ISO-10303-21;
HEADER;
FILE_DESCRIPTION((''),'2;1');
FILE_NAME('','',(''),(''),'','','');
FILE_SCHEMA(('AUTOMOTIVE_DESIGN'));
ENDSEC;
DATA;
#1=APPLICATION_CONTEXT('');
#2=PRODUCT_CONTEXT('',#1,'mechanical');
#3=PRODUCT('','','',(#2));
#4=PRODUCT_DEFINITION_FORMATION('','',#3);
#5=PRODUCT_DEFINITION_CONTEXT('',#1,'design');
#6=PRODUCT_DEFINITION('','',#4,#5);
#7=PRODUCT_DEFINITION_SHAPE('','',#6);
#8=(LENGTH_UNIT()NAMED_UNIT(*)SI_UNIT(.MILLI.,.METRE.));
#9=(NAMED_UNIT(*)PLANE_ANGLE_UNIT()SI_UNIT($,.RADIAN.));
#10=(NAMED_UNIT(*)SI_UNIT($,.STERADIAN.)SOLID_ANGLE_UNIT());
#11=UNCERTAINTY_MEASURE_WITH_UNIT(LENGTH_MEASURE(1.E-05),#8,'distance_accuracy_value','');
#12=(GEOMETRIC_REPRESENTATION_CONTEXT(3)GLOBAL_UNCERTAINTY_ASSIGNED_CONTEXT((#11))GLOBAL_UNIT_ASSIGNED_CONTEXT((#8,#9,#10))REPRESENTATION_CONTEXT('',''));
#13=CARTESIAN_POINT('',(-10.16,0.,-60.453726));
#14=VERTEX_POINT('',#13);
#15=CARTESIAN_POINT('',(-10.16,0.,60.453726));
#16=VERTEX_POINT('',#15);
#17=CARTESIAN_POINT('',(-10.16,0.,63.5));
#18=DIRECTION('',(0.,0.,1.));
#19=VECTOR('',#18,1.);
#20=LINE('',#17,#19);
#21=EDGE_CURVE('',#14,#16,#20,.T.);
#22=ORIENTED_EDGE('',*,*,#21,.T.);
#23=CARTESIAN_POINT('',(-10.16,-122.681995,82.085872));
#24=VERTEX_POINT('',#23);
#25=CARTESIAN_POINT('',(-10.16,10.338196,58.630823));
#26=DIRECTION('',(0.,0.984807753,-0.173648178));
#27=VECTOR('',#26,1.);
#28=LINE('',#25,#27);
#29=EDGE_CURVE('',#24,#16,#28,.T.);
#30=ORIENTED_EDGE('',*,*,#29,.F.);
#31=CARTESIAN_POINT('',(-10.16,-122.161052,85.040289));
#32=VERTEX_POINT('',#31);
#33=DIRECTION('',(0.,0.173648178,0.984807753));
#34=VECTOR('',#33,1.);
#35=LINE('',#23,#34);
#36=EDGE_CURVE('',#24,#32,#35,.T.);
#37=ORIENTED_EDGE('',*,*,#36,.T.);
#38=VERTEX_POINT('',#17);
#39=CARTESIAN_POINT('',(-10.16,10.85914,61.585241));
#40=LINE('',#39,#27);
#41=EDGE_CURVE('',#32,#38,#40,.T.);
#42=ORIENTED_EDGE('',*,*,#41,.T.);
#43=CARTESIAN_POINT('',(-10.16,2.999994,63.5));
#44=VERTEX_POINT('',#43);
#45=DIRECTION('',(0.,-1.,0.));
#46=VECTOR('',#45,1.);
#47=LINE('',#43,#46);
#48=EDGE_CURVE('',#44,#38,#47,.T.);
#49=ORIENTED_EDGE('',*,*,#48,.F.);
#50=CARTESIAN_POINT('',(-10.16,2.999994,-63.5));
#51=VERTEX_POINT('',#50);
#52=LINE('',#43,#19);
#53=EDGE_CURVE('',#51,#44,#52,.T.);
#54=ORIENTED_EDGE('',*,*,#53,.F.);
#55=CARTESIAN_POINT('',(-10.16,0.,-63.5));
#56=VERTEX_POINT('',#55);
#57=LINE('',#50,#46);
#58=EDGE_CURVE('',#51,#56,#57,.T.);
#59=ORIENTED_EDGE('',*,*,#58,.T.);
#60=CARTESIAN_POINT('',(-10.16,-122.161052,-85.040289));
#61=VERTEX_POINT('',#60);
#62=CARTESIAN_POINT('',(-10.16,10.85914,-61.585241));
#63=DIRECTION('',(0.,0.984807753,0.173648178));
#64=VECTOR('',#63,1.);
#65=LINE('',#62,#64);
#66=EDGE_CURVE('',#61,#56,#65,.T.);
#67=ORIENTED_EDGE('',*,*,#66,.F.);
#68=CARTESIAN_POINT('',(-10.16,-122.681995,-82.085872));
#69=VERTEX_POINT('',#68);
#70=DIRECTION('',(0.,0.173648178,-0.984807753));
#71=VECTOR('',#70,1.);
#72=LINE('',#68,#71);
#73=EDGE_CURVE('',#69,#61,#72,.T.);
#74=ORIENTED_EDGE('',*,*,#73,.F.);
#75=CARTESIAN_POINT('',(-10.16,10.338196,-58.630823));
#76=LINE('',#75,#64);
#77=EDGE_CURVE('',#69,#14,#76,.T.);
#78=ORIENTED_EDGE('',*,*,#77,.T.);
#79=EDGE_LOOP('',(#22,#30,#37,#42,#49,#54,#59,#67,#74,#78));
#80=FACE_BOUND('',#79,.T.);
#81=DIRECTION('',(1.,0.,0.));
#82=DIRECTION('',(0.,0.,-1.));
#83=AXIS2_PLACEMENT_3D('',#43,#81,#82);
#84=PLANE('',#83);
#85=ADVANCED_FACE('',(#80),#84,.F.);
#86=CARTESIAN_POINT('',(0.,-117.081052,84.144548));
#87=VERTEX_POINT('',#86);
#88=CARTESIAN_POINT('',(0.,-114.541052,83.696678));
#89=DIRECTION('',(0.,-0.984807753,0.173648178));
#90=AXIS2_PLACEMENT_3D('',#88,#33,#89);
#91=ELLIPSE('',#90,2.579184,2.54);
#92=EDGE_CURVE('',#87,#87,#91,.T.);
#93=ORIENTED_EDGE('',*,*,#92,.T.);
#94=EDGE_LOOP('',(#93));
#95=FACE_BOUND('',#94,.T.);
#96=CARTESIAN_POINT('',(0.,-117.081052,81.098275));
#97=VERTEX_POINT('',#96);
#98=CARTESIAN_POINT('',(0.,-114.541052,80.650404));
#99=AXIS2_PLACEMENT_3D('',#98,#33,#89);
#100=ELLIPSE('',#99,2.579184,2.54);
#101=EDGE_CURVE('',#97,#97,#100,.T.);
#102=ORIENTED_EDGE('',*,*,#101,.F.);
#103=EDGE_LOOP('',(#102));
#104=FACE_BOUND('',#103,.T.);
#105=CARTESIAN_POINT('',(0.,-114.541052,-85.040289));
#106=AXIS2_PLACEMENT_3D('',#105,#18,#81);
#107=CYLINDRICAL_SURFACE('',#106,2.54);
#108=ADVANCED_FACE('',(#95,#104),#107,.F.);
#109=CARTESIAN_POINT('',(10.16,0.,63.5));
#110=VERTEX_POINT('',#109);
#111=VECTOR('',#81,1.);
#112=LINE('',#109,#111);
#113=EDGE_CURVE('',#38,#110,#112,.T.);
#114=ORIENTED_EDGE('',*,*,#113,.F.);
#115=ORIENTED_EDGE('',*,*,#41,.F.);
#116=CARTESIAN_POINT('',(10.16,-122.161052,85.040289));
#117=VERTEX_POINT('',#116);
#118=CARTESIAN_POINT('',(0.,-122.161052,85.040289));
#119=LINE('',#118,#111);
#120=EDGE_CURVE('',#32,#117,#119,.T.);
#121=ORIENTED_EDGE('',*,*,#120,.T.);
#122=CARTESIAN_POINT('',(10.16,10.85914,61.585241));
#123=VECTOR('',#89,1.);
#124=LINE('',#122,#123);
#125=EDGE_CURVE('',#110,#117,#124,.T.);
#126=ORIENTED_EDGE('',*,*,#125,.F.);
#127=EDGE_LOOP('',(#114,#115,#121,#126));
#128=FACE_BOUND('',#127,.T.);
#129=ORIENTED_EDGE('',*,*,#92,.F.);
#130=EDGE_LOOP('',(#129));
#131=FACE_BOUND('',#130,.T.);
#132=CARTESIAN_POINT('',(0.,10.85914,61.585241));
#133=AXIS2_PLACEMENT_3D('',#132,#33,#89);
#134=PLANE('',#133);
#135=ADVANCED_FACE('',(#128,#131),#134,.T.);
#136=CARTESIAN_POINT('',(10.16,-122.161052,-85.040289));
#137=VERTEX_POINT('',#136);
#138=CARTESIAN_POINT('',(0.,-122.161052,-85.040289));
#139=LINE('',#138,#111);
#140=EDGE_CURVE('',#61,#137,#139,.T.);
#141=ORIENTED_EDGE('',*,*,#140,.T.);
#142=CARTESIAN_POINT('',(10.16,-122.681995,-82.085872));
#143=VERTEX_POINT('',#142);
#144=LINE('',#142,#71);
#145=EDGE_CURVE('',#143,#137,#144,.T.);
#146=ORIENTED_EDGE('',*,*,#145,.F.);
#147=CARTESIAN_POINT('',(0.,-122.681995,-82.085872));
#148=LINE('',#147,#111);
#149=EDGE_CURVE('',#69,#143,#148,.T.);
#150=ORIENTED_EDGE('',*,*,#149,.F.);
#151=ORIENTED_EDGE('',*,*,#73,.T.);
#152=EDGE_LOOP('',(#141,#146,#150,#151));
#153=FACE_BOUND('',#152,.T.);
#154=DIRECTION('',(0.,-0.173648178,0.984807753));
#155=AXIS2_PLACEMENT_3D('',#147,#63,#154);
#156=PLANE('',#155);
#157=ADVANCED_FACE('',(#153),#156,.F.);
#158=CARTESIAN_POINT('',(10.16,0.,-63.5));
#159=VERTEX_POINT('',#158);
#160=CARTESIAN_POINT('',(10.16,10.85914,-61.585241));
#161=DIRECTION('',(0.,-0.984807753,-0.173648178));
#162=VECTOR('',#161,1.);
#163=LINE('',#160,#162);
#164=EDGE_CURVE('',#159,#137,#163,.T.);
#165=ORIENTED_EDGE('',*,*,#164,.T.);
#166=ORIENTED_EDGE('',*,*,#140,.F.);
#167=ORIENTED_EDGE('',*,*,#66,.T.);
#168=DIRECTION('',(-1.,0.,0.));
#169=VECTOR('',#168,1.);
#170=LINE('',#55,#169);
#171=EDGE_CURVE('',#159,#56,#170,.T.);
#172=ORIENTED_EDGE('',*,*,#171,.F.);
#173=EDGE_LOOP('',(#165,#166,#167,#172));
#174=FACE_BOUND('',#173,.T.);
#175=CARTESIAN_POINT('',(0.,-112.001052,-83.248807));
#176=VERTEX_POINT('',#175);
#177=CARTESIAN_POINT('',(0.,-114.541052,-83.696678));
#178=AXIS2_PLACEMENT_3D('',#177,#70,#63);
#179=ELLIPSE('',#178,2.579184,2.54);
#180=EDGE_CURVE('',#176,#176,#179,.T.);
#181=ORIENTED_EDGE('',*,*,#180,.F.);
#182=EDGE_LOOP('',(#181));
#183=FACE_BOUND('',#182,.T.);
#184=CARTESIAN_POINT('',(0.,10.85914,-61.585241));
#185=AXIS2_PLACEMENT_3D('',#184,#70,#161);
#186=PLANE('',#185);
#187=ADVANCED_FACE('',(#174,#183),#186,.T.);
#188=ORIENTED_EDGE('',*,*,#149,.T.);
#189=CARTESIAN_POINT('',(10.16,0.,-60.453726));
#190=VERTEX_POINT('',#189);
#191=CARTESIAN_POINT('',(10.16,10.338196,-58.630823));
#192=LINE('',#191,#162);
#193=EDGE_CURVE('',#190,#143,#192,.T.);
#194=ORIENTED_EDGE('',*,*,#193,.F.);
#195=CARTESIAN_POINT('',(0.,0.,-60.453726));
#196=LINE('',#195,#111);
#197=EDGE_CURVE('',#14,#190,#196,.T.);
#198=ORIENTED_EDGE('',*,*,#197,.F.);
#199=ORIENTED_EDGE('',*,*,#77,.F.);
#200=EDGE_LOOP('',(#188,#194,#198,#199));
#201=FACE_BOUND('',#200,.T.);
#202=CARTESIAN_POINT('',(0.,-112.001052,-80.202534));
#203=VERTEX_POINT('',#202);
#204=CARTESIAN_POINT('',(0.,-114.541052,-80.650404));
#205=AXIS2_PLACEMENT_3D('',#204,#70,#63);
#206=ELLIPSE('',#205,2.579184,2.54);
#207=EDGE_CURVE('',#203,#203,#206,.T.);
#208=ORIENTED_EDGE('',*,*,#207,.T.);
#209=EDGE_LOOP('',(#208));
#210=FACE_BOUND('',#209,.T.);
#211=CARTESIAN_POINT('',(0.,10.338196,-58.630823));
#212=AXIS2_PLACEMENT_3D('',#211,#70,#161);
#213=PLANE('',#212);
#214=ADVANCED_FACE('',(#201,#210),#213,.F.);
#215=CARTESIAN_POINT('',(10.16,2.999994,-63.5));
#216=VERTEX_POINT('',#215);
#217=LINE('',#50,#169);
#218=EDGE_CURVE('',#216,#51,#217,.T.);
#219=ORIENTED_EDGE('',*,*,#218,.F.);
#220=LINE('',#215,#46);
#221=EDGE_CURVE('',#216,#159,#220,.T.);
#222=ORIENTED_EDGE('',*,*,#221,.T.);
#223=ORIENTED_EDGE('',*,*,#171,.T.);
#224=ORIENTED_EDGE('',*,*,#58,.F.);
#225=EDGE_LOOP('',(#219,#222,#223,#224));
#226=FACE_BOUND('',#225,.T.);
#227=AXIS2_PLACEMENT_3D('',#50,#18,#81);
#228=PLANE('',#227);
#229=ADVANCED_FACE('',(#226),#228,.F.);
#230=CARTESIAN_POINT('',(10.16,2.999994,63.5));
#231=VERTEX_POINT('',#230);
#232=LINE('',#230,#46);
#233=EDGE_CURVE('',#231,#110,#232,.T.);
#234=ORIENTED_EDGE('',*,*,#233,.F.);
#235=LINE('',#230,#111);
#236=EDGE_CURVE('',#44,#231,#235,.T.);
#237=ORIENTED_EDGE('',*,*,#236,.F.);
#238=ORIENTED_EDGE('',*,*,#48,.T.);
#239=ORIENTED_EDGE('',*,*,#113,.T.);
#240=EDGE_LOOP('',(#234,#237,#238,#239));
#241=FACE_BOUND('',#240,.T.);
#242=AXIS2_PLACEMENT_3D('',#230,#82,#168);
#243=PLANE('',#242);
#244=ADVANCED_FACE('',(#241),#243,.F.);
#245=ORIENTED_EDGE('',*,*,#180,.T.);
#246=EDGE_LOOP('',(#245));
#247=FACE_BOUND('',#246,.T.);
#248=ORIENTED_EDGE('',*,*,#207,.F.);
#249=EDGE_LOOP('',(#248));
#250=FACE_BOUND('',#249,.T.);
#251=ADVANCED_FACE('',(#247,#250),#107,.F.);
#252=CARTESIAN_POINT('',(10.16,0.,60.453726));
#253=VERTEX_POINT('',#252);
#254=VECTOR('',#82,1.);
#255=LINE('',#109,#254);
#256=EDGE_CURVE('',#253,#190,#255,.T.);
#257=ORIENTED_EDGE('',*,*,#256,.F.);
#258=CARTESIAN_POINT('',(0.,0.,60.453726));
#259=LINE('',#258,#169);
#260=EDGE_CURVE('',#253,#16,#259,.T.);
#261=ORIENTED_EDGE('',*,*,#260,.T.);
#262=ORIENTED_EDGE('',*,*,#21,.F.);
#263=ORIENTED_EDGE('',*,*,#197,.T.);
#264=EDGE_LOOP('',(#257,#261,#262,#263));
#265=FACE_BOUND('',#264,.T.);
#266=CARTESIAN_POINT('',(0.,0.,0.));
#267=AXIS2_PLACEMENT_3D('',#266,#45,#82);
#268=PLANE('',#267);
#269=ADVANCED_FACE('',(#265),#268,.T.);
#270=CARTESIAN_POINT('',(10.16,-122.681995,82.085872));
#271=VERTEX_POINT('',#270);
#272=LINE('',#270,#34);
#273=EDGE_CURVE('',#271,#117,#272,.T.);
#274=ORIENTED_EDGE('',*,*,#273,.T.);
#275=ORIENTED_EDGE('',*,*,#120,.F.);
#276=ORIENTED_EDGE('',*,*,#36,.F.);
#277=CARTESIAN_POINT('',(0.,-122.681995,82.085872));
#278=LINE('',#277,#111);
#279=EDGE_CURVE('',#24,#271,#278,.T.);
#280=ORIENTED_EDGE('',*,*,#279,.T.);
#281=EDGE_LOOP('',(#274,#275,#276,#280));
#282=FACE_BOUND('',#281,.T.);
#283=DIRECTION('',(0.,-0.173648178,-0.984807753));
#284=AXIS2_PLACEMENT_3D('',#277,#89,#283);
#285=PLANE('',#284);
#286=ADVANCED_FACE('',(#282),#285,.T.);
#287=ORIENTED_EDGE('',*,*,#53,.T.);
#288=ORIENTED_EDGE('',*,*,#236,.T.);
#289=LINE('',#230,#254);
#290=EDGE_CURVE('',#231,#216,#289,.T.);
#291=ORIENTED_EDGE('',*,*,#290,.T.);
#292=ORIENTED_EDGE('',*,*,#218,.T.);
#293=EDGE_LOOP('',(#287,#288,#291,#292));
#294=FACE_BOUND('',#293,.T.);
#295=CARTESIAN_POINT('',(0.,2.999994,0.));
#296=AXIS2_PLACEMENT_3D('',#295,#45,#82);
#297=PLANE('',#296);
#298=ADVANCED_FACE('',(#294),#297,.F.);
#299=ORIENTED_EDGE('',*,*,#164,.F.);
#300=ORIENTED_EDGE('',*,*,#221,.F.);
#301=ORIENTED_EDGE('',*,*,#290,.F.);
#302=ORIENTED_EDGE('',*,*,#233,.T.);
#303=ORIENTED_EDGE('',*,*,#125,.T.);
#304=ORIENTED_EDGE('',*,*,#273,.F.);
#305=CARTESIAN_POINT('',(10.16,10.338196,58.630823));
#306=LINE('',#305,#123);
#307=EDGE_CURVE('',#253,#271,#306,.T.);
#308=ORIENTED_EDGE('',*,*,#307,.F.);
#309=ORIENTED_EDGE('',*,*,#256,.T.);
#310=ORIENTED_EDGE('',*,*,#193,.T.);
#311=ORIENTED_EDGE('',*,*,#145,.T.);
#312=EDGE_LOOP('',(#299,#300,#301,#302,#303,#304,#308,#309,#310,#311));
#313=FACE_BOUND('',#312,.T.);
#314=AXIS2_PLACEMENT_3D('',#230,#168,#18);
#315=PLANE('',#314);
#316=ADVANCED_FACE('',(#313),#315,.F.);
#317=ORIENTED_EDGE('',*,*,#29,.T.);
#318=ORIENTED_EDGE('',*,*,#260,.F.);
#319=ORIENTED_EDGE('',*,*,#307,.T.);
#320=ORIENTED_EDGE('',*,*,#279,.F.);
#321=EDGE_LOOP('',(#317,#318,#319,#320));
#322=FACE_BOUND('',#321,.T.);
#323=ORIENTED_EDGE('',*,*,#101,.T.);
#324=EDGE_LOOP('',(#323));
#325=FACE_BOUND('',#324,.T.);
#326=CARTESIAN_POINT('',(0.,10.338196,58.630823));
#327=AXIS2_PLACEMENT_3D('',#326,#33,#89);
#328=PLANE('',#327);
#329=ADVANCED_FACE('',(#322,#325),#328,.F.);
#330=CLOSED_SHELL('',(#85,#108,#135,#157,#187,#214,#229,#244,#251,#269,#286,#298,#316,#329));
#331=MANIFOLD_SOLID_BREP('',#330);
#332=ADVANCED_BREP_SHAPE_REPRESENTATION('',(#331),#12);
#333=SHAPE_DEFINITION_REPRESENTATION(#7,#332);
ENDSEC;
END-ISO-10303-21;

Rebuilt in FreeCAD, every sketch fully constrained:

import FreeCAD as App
import Part
import Sketcher

V = App.Vector
Q = App.Units.Quantity


def add_polygon(sketch, points):
    """Adds a closed chain of lines whose ends are joined by coincident constraints."""
    first, n = sketch.GeometryCount, len(points)
    for a, b in zip(points, points[1:] + points[:1]):
        sketch.addGeometry(Part.LineSegment(App.Vector(*a, 0), App.Vector(*b, 0)), False)
    for i in range(n):
        sketch.addConstraint(Sketcher.Constraint("Coincident", first + i, 2, first + (i + 1) % n, 1))

doc = App.newDocument("Part")
body = doc.addObject("PartDesign::Body", "Body")

# Sketch on XZ plane
sketch1 = body.newObject("Sketcher::SketchObject", "Sketch")
sketch1.AttachmentSupport = (doc.getObject("XZ_Plane"), [""])
sketch1.MapMode = "FlatFace"
add_polygon(sketch1, [(-10, -64), (-10, 64), (10, 64), (10, -64)])  # lines 0-3
sketch1.addConstraint([
    Sketcher.Constraint("Vertical", 0),
    Sketcher.Constraint("Horizontal", 1),
    Sketcher.Constraint("Vertical", 2),
    Sketcher.Constraint("Horizontal", 3),
    Sketcher.Constraint("Symmetric", 0, 2, 2, 2, -1, 1),
    Sketcher.Constraint("DistanceY", 0, 1, 0, 2, Q("5 in")),
    Sketcher.Constraint("DistanceX", 1, 1, 1, 2, Q("0.8 in")),
])
pad1 = body.newObject("PartDesign::Pad", "Pad")
pad1.Profile = sketch1
pad1.Length = 2.999994
pad1.Reversed = True

# Sketch on an angled plane
sketch2 = body.newObject("Sketcher::SketchObject", "Sketch001")
sketch2.Placement = App.Placement(V(0, 10.85914, 61.585241), App.Rotation(V(1, 0, 0), V(0, 0.984807753, -0.173648178), V(0, 0.173648178, 0.984807753), "ZXY"))
add_polygon(sketch2, [(10, -8), (-10, -8), (-10, -135), (10, -135)])  # lines 0-3
sketch2.addConstraint([
    Sketcher.Constraint("Horizontal", 0),
    Sketcher.Constraint("Vertical", 1),
    Sketcher.Constraint("Horizontal", 2),
    Sketcher.Constraint("Vertical", 3),
    Sketcher.Constraint("DistanceY", 1, 2, 1, 1, Q("5 in")),
    Sketcher.Constraint("DistanceX", 0, 2, 0, 1, Q("0.8 in")),
    Sketcher.Constraint("DistanceX", 0, 2, -1, 1, Q("0.4 in")),
    Sketcher.Constraint("DistanceY", 0, 2, -1, 1, Q("8.072242 mm")),
])
pad2 = body.newObject("PartDesign::Pad", "Pad001")
pad2.Profile = sketch2
pad2.Length = 2.999994
pad2.Reversed = True
doc.recompute()

mirrored = body.newObject("PartDesign::Mirrored", "Mirrored")
mirrored.Originals = [pad2]
mirrored.MirrorPlane = (doc.getObject("XY_Plane"), [""])
body.Tip = mirrored

# Sketch on XY plane
sketch3 = body.newObject("Sketcher::SketchObject", "Sketch002")
sketch3.AttachmentSupport = (doc.getObject("XY_Plane"), [""])
sketch3.MapMode = "FlatFace"
sketch3.AttachmentOffset = App.Placement(V(0, 0, 3.35 * 25.4), App.Rotation())
sketch3.addGeometry(Part.Circle(V(0, -114.5, 0), V(0, 0, 1), 2.5), False)
sketch3.addConstraint([
    Sketcher.Constraint("PointOnObject", 0, 3, -2),
    Sketcher.Constraint("Diameter", 0, Q("0.2 in")),
    Sketcher.Constraint("DistanceY", 0, 3, -1, 1, Q("114.541052 mm")),
])
pocket1 = body.newObject("PartDesign::Pocket", "Pocket")
pocket1.Profile = sketch3
pocket1.Type = "ThroughAll"

doc.recompute()
